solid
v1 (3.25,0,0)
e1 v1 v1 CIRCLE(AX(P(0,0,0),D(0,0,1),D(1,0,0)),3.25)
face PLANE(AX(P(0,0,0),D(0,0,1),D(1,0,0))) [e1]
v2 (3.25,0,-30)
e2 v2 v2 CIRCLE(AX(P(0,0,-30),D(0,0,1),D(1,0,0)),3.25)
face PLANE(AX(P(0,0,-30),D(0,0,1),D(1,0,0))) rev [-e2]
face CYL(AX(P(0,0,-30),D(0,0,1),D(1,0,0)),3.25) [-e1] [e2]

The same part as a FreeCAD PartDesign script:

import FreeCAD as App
import Part
import Sketcher
from FreeCAD import Vector

doc = App.newDocument("Part")
body = doc.addObject("PartDesign::Body", "Body")

# Sketch on XY plane
sketch1 = body.newObject("Sketcher::SketchObject", "Sketch")
sketch1.AttachmentSupport = (doc.getObject("XY_Plane"), [""])
sketch1.MapMode = "FlatFace"
sketch1.addGeometry(Part.Circle(Vector(0, 0, 0), Vector(0, 0, 1), 3.2), False)
sketch1.addConstraint(Sketcher.Constraint("Coincident", 0, 3, -1, 1))
sketch1.addConstraint(Sketcher.Constraint("Diameter", 0, 6.5))
pad1 = body.newObject("PartDesign::Pad", "Pad")
pad1.Profile = sketch1
pad1.Length = 30
pad1.Reversed = True

doc.recompute()
